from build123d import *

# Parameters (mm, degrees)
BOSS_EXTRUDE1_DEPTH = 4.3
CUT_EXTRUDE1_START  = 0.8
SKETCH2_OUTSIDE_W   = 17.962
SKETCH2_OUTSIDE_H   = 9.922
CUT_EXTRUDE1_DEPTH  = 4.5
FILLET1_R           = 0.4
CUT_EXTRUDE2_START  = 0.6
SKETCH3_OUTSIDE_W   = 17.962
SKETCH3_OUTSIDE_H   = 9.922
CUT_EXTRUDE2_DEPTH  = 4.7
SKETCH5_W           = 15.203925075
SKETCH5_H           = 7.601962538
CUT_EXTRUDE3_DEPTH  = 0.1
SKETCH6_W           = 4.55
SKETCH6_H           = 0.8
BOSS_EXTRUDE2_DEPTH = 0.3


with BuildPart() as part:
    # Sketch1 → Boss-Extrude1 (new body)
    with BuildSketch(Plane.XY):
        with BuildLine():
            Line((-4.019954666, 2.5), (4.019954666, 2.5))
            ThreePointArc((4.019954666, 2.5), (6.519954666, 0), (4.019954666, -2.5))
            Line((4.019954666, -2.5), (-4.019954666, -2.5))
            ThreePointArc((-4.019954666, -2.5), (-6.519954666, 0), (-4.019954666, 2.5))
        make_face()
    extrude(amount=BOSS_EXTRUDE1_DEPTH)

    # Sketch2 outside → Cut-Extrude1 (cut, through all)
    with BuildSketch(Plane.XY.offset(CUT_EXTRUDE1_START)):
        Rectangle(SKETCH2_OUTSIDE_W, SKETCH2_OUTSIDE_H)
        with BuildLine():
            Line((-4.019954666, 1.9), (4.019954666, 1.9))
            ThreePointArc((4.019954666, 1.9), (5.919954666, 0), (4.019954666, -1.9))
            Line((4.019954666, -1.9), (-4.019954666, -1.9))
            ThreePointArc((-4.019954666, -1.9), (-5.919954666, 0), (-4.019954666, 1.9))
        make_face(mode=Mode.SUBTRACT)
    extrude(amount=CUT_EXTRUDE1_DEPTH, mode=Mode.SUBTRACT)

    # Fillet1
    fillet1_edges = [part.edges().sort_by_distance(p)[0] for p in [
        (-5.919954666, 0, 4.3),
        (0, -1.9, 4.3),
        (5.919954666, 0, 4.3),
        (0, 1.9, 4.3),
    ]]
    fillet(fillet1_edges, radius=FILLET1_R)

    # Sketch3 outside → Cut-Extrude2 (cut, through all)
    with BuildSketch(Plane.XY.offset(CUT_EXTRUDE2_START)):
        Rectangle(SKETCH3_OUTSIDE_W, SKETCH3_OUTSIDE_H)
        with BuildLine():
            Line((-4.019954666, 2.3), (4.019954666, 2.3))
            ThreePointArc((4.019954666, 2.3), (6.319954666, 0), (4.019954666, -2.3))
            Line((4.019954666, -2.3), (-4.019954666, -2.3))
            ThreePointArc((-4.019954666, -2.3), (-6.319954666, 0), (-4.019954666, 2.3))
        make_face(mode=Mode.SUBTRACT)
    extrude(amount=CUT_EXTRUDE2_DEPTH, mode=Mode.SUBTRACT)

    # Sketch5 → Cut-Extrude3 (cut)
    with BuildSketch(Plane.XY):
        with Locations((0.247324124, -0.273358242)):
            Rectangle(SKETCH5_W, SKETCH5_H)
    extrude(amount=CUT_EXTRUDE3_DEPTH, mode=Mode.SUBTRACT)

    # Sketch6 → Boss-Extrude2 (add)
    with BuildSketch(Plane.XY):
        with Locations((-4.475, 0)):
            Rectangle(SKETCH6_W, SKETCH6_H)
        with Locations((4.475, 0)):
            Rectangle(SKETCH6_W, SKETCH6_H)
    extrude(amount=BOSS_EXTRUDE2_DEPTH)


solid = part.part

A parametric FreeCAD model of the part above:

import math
import FreeCAD as App
import Part
import Sketcher

V = App.Vector
Q = App.Units.Quantity


def edges_at(feature, points):
    """Names of the edges that pass closest to the given points."""
    edges = feature.Shape.Edges
    near = lambda p: min(range(len(edges)), key=lambda i: edges[i].distToShape(Part.Vertex(*p))[0])
    return sorted({f"Edge{near(p) + 1}" for p in points})

doc = App.newDocument("Part")
body = doc.addObject("PartDesign::Body", "Body")

# Sketch on XY plane
sketch1 = body.newObject("Sketcher::SketchObject", "Sketch")
sketch1.AttachmentSupport = (doc.getObject("XY_Plane"), [""])
sketch1.MapMode = "FlatFace"
sketch1.addGeometry(Part.LineSegment(V(4, 2.5, 0), V(-4, 2.5, 0)), False)
sketch1.addGeometry(Part.ArcOfCircle(Part.Circle(V(-4, 0, 0), V(0, 0, 1), 2.5), math.radians(90), math.radians(270)), False)
sketch1.addGeometry(Part.LineSegment(V(-4, -2.5, 0), V(4, -2.5, 0)), False)
sketch1.addGeometry(Part.ArcOfCircle(Part.Circle(V(4, 0, 0), V(0, 0, 1), 2.5), math.radians(-90), math.radians(90)), False)
sketch1.addConstraint(Sketcher.Constraint("Tangent", 0, 2, 1, 1))
sketch1.addConstraint(Sketcher.Constraint("Tangent", 1, 2, 2, 1))
sketch1.addConstraint(Sketcher.Constraint("Tangent", 2, 2, 3, 1))
sketch1.addConstraint(Sketcher.Constraint("Tangent", 3, 2, 0, 1))
sketch1.addConstraint(Sketcher.Constraint("Horizontal", 0))
sketch1.addConstraint(Sketcher.Constraint("Horizontal", 2))
sketch1.addConstraint(Sketcher.Constraint("Symmetric", 1, 3, 3, 3, -1, 1))
sketch1.addConstraint(Sketcher.Constraint("Radius", 1, Q("2.5 mm")))
sketch1.addConstraint(Sketcher.Constraint("DistanceX", 0, 2, 0, 1, Q("8.039909 mm")))
pad1 = body.newObject("PartDesign::Pad", "Pad")
pad1.Profile = sketch1
pad1.Length = 4.3

# Sketch on XY plane
sketch2 = body.newObject("Sketcher::SketchObject", "Sketch001")
sketch2.AttachmentSupport = (doc.getObject("XY_Plane"), [""])
sketch2.MapMode = "FlatFace"
sketch2.AttachmentOffset = App.Placement(V(0, 0, 0.8), App.Rotation())
sketch2.addGeometry(Part.LineSegment(V(-9, 5, 0), V(-9, -5, 0)), False)
sketch2.addGeometry(Part.LineSegment(V(-9, -5, 0), V(9, -5, 0)), False)
sketch2.addGeometry(Part.LineSegment(V(9, -5, 0), V(9, 5, 0)), False)
sketch2.addGeometry(Part.LineSegment(V(9, 5, 0), V(-9, 5, 0)), False)
sketch2.addGeometry(Part.ArcOfCircle(Part.Circle(V(-4, 0, 0), V(0, 0, 1), 1.9), math.radians(90), math.radians(270)), False)
sketch2.addGeometry(Part.LineSegment(V(-4, 1.9, 0), V(4, 1.9, 0)), False)
sketch2.addGeometry(Part.ArcOfCircle(Part.Circle(V(4, 0, 0), V(0, 0, 1), 1.9), math.radians(-90), math.radians(90)), False)
sketch2.addGeometry(Part.LineSegment(V(4, -1.9, 0), V(-4, -1.9, 0)), False)
sketch2.addConstraint(Sketcher.Constraint("Coincident", 0, 2, 1, 1))
sketch2.addConstraint(Sketcher.Constraint("Coincident", 1, 2, 2, 1))
sketch2.addConstraint(Sketcher.Constraint("Coincident", 2, 2, 3, 1))
sketch2.addConstraint(Sketcher.Constraint("Coincident", 3, 2, 0, 1))
sketch2.addConstraint(Sketcher.Constraint("Tangent", 4, 1, 5, 1))
sketch2.addConstraint(Sketcher.Constraint("Tangent", 5, 2, 6, 2))
sketch2.addConstraint(Sketcher.Constraint("Tangent", 6, 1, 7, 1))
sketch2.addConstraint(Sketcher.Constraint("Tangent", 7, 2, 4, 2))
sketch2.addConstraint(Sketcher.Constraint("Vertical", 0))
sketch2.addConstraint(Sketcher.Constraint("Horizontal", 1))
sketch2.addConstraint(Sketcher.Constraint("Vertical", 2))
sketch2.addConstraint(Sketcher.Constraint("Horizontal", 3))
sketch2.addConstraint(Sketcher.Constraint("Horizontal", 5))
sketch2.addConstraint(Sketcher.Constraint("Horizontal", 7))
sketch2.addConstraint(Sketcher.Constraint("Symmetric", 4, 3, 6, 3, -1, 1))
sketch2.addConstraint(Sketcher.Constraint("Symmetric", 0, 2, 2, 2, -1, 1))
sketch2.addConstraint(Sketcher.Constraint("Radius", 4, Q("1.9 mm")))
sketch2.addConstraint(Sketcher.Constraint("DistanceX", 1, 1, 1, 2, Q("17.962 mm")))
sketch2.addConstraint(Sketcher.Constraint("DistanceY", 0, 2, 0, 1, Q("9.922 mm")))
sketch2.addConstraint(Sketcher.Constraint("DistanceX", 5, 1, 5, 2, Q("8.039909 mm")))
pocket1 = body.newObject("PartDesign::Pocket", "Pocket")
pocket1.Profile = sketch2
pocket1.Type = "ThroughAll"
pocket1.Reversed = True
doc.recompute()

fillet = body.newObject("PartDesign::Fillet", "Fillet")
fillet.Base = (pocket1, edges_at(pocket1, [
    (-5.92, 0, 4.3),
    (0, -1.9, 4.3),
    (5.92, 0, 4.3),
    (0, 1.9, 4.3),
]))
fillet.Radius = 0.4

# Sketch on XY plane
sketch3 = body.newObject("Sketcher::SketchObject", "Sketch002")
sketch3.AttachmentSupport = (doc.getObject("XY_Plane"), [""])
sketch3.MapMode = "FlatFace"
sketch3.AttachmentOffset = App.Placement(V(0, 0, 0.6), App.Rotation())
sketch3.addGeometry(Part.LineSegment(V(-9, 5, 0), V(-9, -5, 0)), False)
sketch3.addGeometry(Part.LineSegment(V(-9, -5, 0), V(9, -5, 0)), False)
sketch3.addGeometry(Part.LineSegment(V(9, -5, 0), V(9, 5, 0)), False)
sketch3.addGeometry(Part.LineSegment(V(9, 5, 0), V(-9, 5, 0)), False)
sketch3.addGeometry(Part.ArcOfCircle(Part.Circle(V(-4, 0, 0), V(0, 0, 1), 2.3), math.radians(90), math.radians(270)), False)
sketch3.addGeometry(Part.LineSegment(V(-4, 2.3, 0), V(4, 2.3, 0)), False)
sketch3.addGeometry(Part.ArcOfCircle(Part.Circle(V(4, 0, 0), V(0, 0, 1), 2.3), math.radians(-90), math.radians(90)), False)
sketch3.addGeometry(Part.LineSegment(V(4, -2.3, 0), V(-4, -2.3, 0)), False)
sketch3.addConstraint(Sketcher.Constraint("Coincident", 0, 2, 1, 1))
sketch3.addConstraint(Sketcher.Constraint("Coincident", 1, 2, 2, 1))
sketch3.addConstraint(Sketcher.Constraint("Coincident", 2, 2, 3, 1))
sketch3.addConstraint(Sketcher.Constraint("Coincident", 3, 2, 0, 1))
sketch3.addConstraint(Sketcher.Constraint("Tangent", 4, 1, 5, 1))
sketch3.addConstraint(Sketcher.Constraint("Tangent", 5, 2, 6, 2))
sketch3.addConstraint(Sketcher.Constraint("Tangent", 6, 1, 7, 1))
sketch3.addConstraint(Sketcher.Constraint("Tangent", 7, 2, 4, 2))
sketch3.addConstraint(Sketcher.Constraint("Vertical", 0))
sketch3.addConstraint(Sketcher.Constraint("Horizontal", 1))
sketch3.addConstraint(Sketcher.Constraint("Vertical", 2))
sketch3.addConstraint(Sketcher.Constraint("Horizontal", 3))
sketch3.addConstraint(Sketcher.Constraint("Horizontal", 5))
sketch3.addConstraint(Sketcher.Constraint("Horizontal", 7))
sketch3.addConstraint(Sketcher.Constraint("Symmetric", 4, 3, 6, 3, -1, 1))
sketch3.addConstraint(Sketcher.Constraint("Symmetric", 0, 2, 2, 2, -1, 1))
sketch3.addConstraint(Sketcher.Constraint("Radius", 4, Q("2.3 mm")))
sketch3.addConstraint(Sketcher.Constraint("DistanceX", 1, 1, 1, 2, Q("17.962 mm")))
sketch3.addConstraint(Sketcher.Constraint("DistanceY", 0, 2, 0, 1, Q("9.922 mm")))
sketch3.addConstraint(Sketcher.Constraint("DistanceX", 5, 1, 5, 2, Q("8.039909 mm")))
pocket2 = body.newObject("PartDesign::Pocket", "Pocket001")
pocket2.Profile = sketch3
pocket2.Type = "ThroughAll"
pocket2.Reversed = True

# Sketch on XY plane
sketch4 = body.newObject("Sketcher::SketchObject", "Sketch003")
sketch4.AttachmentSupport = (doc.getObject("XY_Plane"), [""])
sketch4.MapMode = "FlatFace"
sketch4.addGeometry(Part.LineSegment(V(-7, 4, 0), V(-7, -4, 0)), False)
sketch4.addGeometry(Part.LineSegment(V(-7, -4, 0), V(8, -4, 0)), False)
sketch4.addGeometry(Part.LineSegment(V(8, -4, 0), V(8, 4, 0)), False)
sketch4.addGeometry(Part.LineSegment(V(8, 4, 0), V(-7, 4, 0)), False)
sketch4.addConstraint(Sketcher.Constraint("Coincident", 0, 2, 1, 1))
sketch4.addConstraint(Sketcher.Constraint("Coincident", 1, 2, 2, 1))
sketch4.addConstraint(Sketcher.Constraint("Coincident", 2, 2, 3, 1))
sketch4.addConstraint(Sketcher.Constraint("Coincident", 3, 2, 0, 1))
sketch4.addConstraint(Sketcher.Constraint("Vertical", 0))
sketch4.addConstraint(Sketcher.Constraint("Horizontal", 1))
sketch4.addConstraint(Sketcher.Constraint("Vertical", 2))
sketch4.addConstraint(Sketcher.Constraint("Horizontal", 3))
sketch4.addConstraint(Sketcher.Constraint("DistanceX", 1, 1, 1, 2, Q("15.203925 mm")))
sketch4.addConstraint(Sketcher.Constraint("DistanceY", 0, 2, 0, 1, Q("7.601963 mm")))
sketch4.addConstraint(Sketcher.Constraint("DistanceX", 0, 2, -1, 1, Q("7.354638 mm")))
sketch4.addConstraint(Sketcher.Constraint("DistanceY", 0, 2, -1, 1, Q("4.07434 mm")))
pocket3 = body.newObject("PartDesign::Pocket", "Pocket002")
pocket3.Profile = sketch4
pocket3.Length = 0.1
pocket3.Reversed = True

# Sketch on XY plane
sketch5 = body.newObject("Sketcher::SketchObject", "Sketch004")
sketch5.AttachmentSupport = (doc.getObject("XY_Plane"), [""])
sketch5.MapMode = "FlatFace"
sketch5.addGeometry(Part.LineSegment(V(-6.8, 0.4, 0), V(-6.8, -0.4, 0)), False)
sketch5.addGeometry(Part.LineSegment(V(-6.8, -0.4, 0), V(-2.2, -0.4, 0)), False)
sketch5.addGeometry(Part.LineSegment(V(-2.2, -0.4, 0), V(-2.2, 0.4, 0)), False)
sketch5.addGeometry(Part.LineSegment(V(-2.2, 0.4, 0), V(-6.8, 0.4, 0)), False)
sketch5.addGeometry(Part.LineSegment(V(2.2, 0.4, 0), V(2.2, -0.4, 0)), False)
sketch5.addGeometry(Part.LineSegment(V(2.2, -0.4, 0), V(6.8, -0.4, 0)), False)
sketch5.addGeometry(Part.LineSegment(V(6.8, -0.4, 0), V(6.8, 0.4, 0)), False)
sketch5.addGeometry(Part.LineSegment(V(6.8, 0.4, 0), V(2.2, 0.4, 0)), False)
sketch5.addConstraint(Sketcher.Constraint("Coincident", 0, 2, 1, 1))
sketch5.addConstraint(Sketcher.Constraint("Coincident", 1, 2, 2, 1))
sketch5.addConstraint(Sketcher.Constraint("Coincident", 2, 2, 3, 1))
sketch5.addConstraint(Sketcher.Constraint("Coincident", 3, 2, 0, 1))
sketch5.addConstraint(Sketcher.Constraint("Coincident", 4, 2, 5, 1))
sketch5.addConstraint(Sketcher.Constraint("Coincident", 5, 2, 6, 1))
sketch5.addConstraint(Sketcher.Constraint("Coincident", 6, 2, 7, 1))
sketch5.addConstraint(Sketcher.Constraint("Coincident", 7, 2, 4, 1))
sketch5.addConstraint(Sketcher.Constraint("Vertical", 0))
sketch5.addConstraint(Sketcher.Constraint("Horizontal", 1))
sketch5.addConstraint(Sketcher.Constraint("Vertical", 2))
sketch5.addConstraint(Sketcher.Constraint("Horizontal", 3))
sketch5.addConstraint(Sketcher.Constraint("Vertical", 4))
sketch5.addConstraint(Sketcher.Constraint("Horizontal", 5))
sketch5.addConstraint(Sketcher.Constraint("Vertical", 6))
sketch5.addConstraint(Sketcher.Constraint("Horizontal", 7))
sketch5.addConstraint(Sketcher.Constraint("Symmetric", 2, 2, 4, 2, -1, 1))
sketch5.addConstraint(Sketcher.Constraint("Symmetric", 0, 2, 6, 2, -1, 1))
sketch5.addConstraint(Sketcher.Constraint("Horizontal", 1, 2, 4, 2))
sketch5.addConstraint(Sketcher.Constraint("DistanceY", 0, 2, 0, 1, Q("0.8 mm")))
sketch5.addConstraint(Sketcher.Constraint("DistanceX", 1, 1, 1, 2, Q("4.55 mm")))
sketch5.addConstraint(Sketcher.Constraint("DistanceX", 1, 2, -1, 1, Q("2.2 mm")))
pad2 = body.newObject("PartDesign::Pad", "Pad001")
pad2.Profile = sketch5
pad2.Length = 0.3

doc.recompute()
